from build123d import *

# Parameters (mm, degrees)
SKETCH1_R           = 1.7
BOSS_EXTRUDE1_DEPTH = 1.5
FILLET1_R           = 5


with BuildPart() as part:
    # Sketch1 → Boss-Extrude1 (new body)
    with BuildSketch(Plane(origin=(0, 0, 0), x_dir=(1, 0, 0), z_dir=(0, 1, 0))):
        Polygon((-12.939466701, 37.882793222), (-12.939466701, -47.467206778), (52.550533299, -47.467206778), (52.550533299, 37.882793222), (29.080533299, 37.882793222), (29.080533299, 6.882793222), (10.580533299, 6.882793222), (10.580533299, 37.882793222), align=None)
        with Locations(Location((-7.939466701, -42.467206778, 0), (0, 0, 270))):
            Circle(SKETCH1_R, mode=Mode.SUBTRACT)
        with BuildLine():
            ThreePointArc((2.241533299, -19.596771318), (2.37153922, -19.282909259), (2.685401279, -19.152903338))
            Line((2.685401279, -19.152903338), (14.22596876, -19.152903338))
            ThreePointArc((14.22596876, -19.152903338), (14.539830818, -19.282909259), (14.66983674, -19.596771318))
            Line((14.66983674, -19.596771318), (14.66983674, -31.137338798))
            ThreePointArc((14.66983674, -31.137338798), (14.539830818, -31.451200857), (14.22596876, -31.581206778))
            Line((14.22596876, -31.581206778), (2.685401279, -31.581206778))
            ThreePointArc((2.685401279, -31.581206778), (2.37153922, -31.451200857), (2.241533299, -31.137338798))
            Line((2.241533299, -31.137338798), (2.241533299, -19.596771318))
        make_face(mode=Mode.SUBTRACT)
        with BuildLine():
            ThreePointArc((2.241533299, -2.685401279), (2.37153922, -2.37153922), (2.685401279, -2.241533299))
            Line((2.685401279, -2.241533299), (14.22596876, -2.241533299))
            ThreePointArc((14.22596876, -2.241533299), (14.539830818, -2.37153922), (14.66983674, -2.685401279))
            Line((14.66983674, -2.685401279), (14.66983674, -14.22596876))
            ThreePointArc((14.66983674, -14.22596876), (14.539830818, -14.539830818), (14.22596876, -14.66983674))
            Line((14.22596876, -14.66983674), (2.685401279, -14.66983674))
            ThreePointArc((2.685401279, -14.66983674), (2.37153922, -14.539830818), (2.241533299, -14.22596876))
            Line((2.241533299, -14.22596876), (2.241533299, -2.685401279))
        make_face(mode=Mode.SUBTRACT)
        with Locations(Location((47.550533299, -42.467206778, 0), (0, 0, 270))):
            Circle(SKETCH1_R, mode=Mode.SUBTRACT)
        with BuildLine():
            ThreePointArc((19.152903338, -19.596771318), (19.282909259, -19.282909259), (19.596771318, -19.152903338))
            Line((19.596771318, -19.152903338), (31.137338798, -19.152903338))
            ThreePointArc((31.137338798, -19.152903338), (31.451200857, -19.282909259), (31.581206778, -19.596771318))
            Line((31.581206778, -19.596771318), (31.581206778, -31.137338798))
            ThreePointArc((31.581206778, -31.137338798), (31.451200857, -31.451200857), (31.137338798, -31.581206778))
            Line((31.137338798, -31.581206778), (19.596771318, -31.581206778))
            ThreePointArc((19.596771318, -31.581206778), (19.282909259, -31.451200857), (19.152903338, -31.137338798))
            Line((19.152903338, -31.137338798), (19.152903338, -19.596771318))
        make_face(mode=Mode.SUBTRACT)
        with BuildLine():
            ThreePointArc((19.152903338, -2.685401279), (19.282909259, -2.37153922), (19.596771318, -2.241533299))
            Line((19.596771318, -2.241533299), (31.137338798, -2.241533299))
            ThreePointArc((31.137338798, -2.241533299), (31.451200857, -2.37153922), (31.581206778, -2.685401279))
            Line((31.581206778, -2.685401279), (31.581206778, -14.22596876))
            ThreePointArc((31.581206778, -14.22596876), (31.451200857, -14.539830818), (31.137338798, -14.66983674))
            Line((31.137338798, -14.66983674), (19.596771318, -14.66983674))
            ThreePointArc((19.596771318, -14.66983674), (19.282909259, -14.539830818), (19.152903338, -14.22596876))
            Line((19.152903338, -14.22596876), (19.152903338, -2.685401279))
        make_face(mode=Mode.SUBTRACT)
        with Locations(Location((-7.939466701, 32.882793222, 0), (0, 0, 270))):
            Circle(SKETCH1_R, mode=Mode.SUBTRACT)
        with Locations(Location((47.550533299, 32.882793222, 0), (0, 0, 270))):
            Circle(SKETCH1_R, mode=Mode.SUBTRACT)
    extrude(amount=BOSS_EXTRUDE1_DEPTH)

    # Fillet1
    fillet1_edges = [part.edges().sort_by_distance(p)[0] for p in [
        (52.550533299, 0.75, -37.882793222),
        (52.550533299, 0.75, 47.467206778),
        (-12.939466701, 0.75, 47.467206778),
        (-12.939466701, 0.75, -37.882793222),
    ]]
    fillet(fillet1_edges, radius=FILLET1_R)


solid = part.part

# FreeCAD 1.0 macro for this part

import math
import FreeCAD as App
import Part
import Sketcher
from FreeCAD import Vector


def edges_at(feature, points):
    """Names of the edges that pass closest to the given points."""
    edges = feature.Shape.Edges
    near = lambda p: min(range(len(edges)), key=lambda i: edges[i].distToShape(Part.Vertex(*p))[0])
    return sorted({f"Edge{near(p) + 1}" for p in points})

doc = App.newDocument("Part")
body = doc.addObject("PartDesign::Body", "Body")

sketch1 = body.newObject("Sketcher::SketchObject", "Sketch")
sketch1.AttachmentSupport = (doc.getObject("XZ_Plane"), [""])
sketch1.MapMode = "FlatFace"
sketch1.addGeometry(Part.LineSegment(Vector(-12.94, -37.88, 0), Vector(-12.94, 47.47, 0)), False)
sketch1.addGeometry(Part.LineSegment(Vector(-12.94, 47.47, 0), Vector(52.55, 47.47, 0)), False)
sketch1.addGeometry(Part.LineSegment(Vector(52.55, 47.47, 0), Vector(52.55, -37.88, 0)), False)
sketch1.addGeometry(Part.LineSegment(Vector(52.55, -37.88, 0), Vector(29.08, -37.88, 0)), False)
sketch1.addGeometry(Part.LineSegment(Vector(29.08, -37.88, 0), Vector(29.08, -6.88, 0)), False)
sketch1.addGeometry(Part.LineSegment(Vector(29.08, -6.88, 0), Vector(10.58, -6.88, 0)), False)
sketch1.addGeometry(Part.LineSegment(Vector(10.58, -6.88, 0), Vector(10.58, -37.88, 0)), False)
sketch1.addGeometry(Part.LineSegment(Vector(10.58, -37.88, 0), Vector(-12.94, -37.88, 0)), False)
sketch1.addGeometry(Part.Circle(Vector(-7.94, 42.47, 0), Vector(0, 0, 1), 1.7), False)
sketch1.addGeometry(Part.LineSegment(Vector(2.24, 31.14, 0), Vector(2.24, 19.6, 0)), False)
sketch1.addGeometry(Part.ArcOfCircle(Part.Circle(Vector(2.69, 19.6, 0), Vector(0, 0, 1), 0.44), math.radians(180), math.radians(270)), False)
sketch1.addGeometry(Part.LineSegment(Vector(2.69, 19.15, 0), Vector(14.23, 19.15, 0)), False)
sketch1.addGeometry(Part.ArcOfCircle(Part.Circle(Vector(14.23, 19.6, 0), Vector(0, 0, 1), 0.44), math.radians(-90), math.radians(0)), False)
sketch1.addGeometry(Part.LineSegment(Vector(14.67, 19.6, 0), Vector(14.67, 31.14, 0)), False)
sketch1.addGeometry(Part.ArcOfCircle(Part.Circle(Vector(14.23, 31.14, 0), Vector(0, 0, 1), 0.44), math.radians(0), math.radians(90)), False)
sketch1.addGeometry(Part.LineSegment(Vector(14.23, 31.58, 0), Vector(2.69, 31.58, 0)), False)
sketch1.addGeometry(Part.ArcOfCircle(Part.Circle(Vector(2.69, 31.14, 0), Vector(0, 0, 1), 0.44), math.radians(90), math.radians(180)), False)
sketch1.addGeometry(Part.LineSegment(Vector(2.24, 14.23, 0), Vector(2.24, 2.69, 0)), False)
sketch1.addGeometry(Part.ArcOfCircle(Part.Circle(Vector(2.69, 2.69, 0), Vector(0, 0, 1), 0.44), math.radians(180), math.radians(270)), False)
sketch1.addGeometry(Part.LineSegment(Vector(2.69, 2.24, 0), Vector(14.23, 2.24, 0)), False)
sketch1.addGeometry(Part.ArcOfCircle(Part.Circle(Vector(14.23, 2.69, 0), Vector(0, 0, 1), 0.44), math.radians(-90), math.radians(0)), False)
sketch1.addGeometry(Part.LineSegment(Vector(14.67, 2.69, 0), Vector(14.67, 14.23, 0)), False)
sketch1.addGeometry(Part.ArcOfCircle(Part.Circle(Vector(14.23, 14.23, 0), Vector(0, 0, 1), 0.44), math.radians(0), math.radians(90)), False)
sketch1.addGeometry(Part.LineSegment(Vector(14.23, 14.67, 0), Vector(2.69, 14.67, 0)), False)
sketch1.addGeometry(Part.ArcOfCircle(Part.Circle(Vector(2.69, 14.23, 0), Vector(0, 0, 1), 0.44), math.radians(90), math.radians(180)), False)
sketch1.addGeometry(Part.LineSegment(Vector(19.15, 31.14, 0), Vector(19.15, 19.6, 0)), False)
sketch1.addGeometry(Part.ArcOfCircle(Part.Circle(Vector(19.6, 19.6, 0), Vector(0, 0, 1), 0.44), math.radians(180), math.radians(270)), False)
sketch1.addGeometry(Part.LineSegment(Vector(19.6, 19.15, 0), Vector(31.14, 19.15, 0)), False)
sketch1.addGeometry(Part.ArcOfCircle(Part.Circle(Vector(31.14, 19.6, 0), Vector(0, 0, 1), 0.44), math.radians(-90), math.radians(0)), False)
sketch1.addGeometry(Part.LineSegment(Vector(31.58, 19.6, 0), Vector(31.58, 31.14, 0)), False)
sketch1.addGeometry(Part.ArcOfCircle(Part.Circle(Vector(31.14, 31.14, 0), Vector(0, 0, 1), 0.44), math.radians(0), math.radians(90)), False)
sketch1.addGeometry(Part.LineSegment(Vector(31.14, 31.58, 0), Vector(19.6, 31.58, 0)), False)
sketch1.addGeometry(Part.ArcOfCircle(Part.Circle(Vector(19.6, 31.14, 0), Vector(0, 0, 1), 0.44), math.radians(90), math.radians(180)), False)
sketch1.addGeometry(Part.Circle(Vector(47.55, 42.47, 0), Vector(0, 0, 1), 1.7), False)
sketch1.addGeometry(Part.LineSegment(Vector(19.15, 14.23, 0), Vector(19.15, 2.69, 0)), False)
sketch1.addGeometry(Part.ArcOfCircle(Part.Circle(Vector(19.6, 2.69, 0), Vector(0, 0, 1), 0.44), math.radians(180), math.radians(270)), False)
sketch1.addGeometry(Part.LineSegment(Vector(19.6, 2.24, 0), Vector(31.14, 2.24, 0)), False)
sketch1.addGeometry(Part.ArcOfCircle(Part.Circle(Vector(31.14, 2.69, 0), Vector(0, 0, 1), 0.44), math.radians(-90), math.radians(0)), False)
sketch1.addGeometry(Part.LineSegment(Vector(31.58, 2.69, 0), Vector(31.58, 14.23, 0)), False)
sketch1.addGeometry(Part.ArcOfCircle(Part.Circle(Vector(31.14, 14.23, 0), Vector(0, 0, 1), 0.44), math.radians(0), math.radians(90)), False)
sketch1.addGeometry(Part.LineSegment(Vector(31.14, 14.67, 0), Vector(19.6, 14.67, 0)), False)
sketch1.addGeometry(Part.ArcOfCircle(Part.Circle(Vector(19.6, 14.23, 0), Vector(0, 0, 1), 0.44), math.radians(90), math.radians(180)), False)
sketch1.addGeometry(Part.Circle(Vector(-7.94, -32.88, 0), Vector(0, 0, 1), 1.7), False)
sketch1.addGeometry(Part.Circle(Vector(47.55, -32.88, 0), Vector(0, 0, 1), 1.7), False)
sketch1.addConstraint(Sketcher.Constraint("Coincident", 0, 2, 1, 1))
sketch1.addConstraint(Sketcher.Constraint("Coincident", 1, 2, 2, 1))
sketch1.addConstraint(Sketcher.Constraint("Coincident", 2, 2, 3, 1))
sketch1.addConstraint(Sketcher.Constraint("Coincident", 3, 2, 4, 1))
sketch1.addConstraint(Sketcher.Constraint("Coincident", 4, 2, 5, 1))
sketch1.addConstraint(Sketcher.Constraint("Coincident", 5, 2, 6, 1))
sketch1.addConstraint(Sketcher.Constraint("Coincident", 6, 2, 7, 1))
sketch1.addConstraint(Sketcher.Constraint("Coincident", 7, 2, 0, 1))
sketch1.addConstraint(Sketcher.Constraint("Tangent", 9, 2, 10, 1))
sketch1.addConstraint(Sketcher.Constraint("Tangent", 10, 2, 11, 1))
sketch1.addConstraint(Sketcher.Constraint("Tangent", 11, 2, 12, 1))
sketch1.addConstraint(Sketcher.Constraint("Tangent", 12, 2, 13, 1))
sketch1.addConstraint(Sketcher.Constraint("Tangent", 13, 2, 14, 1))
sketch1.addConstraint(Sketcher.Constraint("Tangent", 14, 2, 15, 1))
sketch1.addConstraint(Sketcher.Constraint("Tangent", 15, 2, 16, 1))
sketch1.addConstraint(Sketcher.Constraint("Tangent", 16, 2, 9, 1))
sketch1.addConstraint(Sketcher.Constraint("Tangent", 17, 2, 18, 1))
sketch1.addConstraint(Sketcher.Constraint("Tangent", 18, 2, 19, 1))
sketch1.addConstraint(Sketcher.Constraint("Tangent", 19, 2, 20, 1))
sketch1.addConstraint(Sketcher.Constraint("Tangent", 20, 2, 21, 1))
sketch1.addConstraint(Sketcher.Constraint("Tangent", 21, 2, 22, 1))
sketch1.addConstraint(Sketcher.Constraint("Tangent", 22, 2, 23, 1))
sketch1.addConstraint(Sketcher.Constraint("Tangent", 23, 2, 24, 1))
sketch1.addConstraint(Sketcher.Constraint("Tangent", 24, 2, 17, 1))
sketch1.addConstraint(Sketcher.Constraint("Tangent", 25, 2, 26, 1))
sketch1.addConstraint(Sketcher.Constraint("Tangent", 26, 2, 27, 1))
sketch1.addConstraint(Sketcher.Constraint("Tangent", 27, 2, 28, 1))
sketch1.addConstraint(Sketcher.Constraint("Tangent", 28, 2, 29, 1))
sketch1.addConstraint(Sketcher.Constraint("Tangent", 29, 2, 30, 1))
sketch1.addConstraint(Sketcher.Constraint("Tangent", 30, 2, 31, 1))
sketch1.addConstraint(Sketcher.Constraint("Tangent", 31, 2, 32, 1))
sketch1.addConstraint(Sketcher.Constraint("Tangent", 32, 2, 25, 1))
sketch1.addConstraint(Sketcher.Constraint("Tangent", 34, 2, 35, 1))
sketch1.addConstraint(Sketcher.Constraint("Tangent", 35, 2, 36, 1))
sketch1.addConstraint(Sketcher.Constraint("Tangent", 36, 2, 37, 1))
sketch1.addConstraint(Sketcher.Constraint("Tangent", 37, 2, 38, 1))
sketch1.addConstraint(Sketcher.Constraint("Tangent", 38, 2, 39, 1))
sketch1.addConstraint(Sketcher.Constraint("Tangent", 39, 2, 40, 1))
sketch1.addConstraint(Sketcher.Constraint("Tangent", 40, 2, 41, 1))
sketch1.addConstraint(Sketcher.Constraint("Tangent", 41, 2, 34, 1))
sketch1.addConstraint(Sketcher.Constraint("Vertical", 0))
sketch1.addConstraint(Sketcher.Constraint("Horizontal", 1))
sketch1.addConstraint(Sketcher.Constraint("Vertical", 2))
sketch1.addConstraint(Sketcher.Constraint("Horizontal", 3))
sketch1.addConstraint(Sketcher.Constraint("Vertical", 4))
sketch1.addConstraint(Sketcher.Constraint("Horizontal", 5))
sketch1.addConstraint(Sketcher.Constraint("Vertical", 6))
sketch1.addConstraint(Sketcher.Constraint("Horizontal", 7))
sketch1.addConstraint(Sketcher.Constraint("Vertical", 9))
sketch1.addConstraint(Sketcher.Constraint("Horizontal", 11))
sketch1.addConstraint(Sketcher.Constraint("Vertical", 13))
sketch1.addConstraint(Sketcher.Constraint("Horizontal", 15))
sketch1.addConstraint(Sketcher.Constraint("Vertical", 17))
sketch1.addConstraint(Sketcher.Constraint("Horizontal", 19))
sketch1.addConstraint(Sketcher.Constraint("Vertical", 21))
sketch1.addConstraint(Sketcher.Constraint("Horizontal", 23))
sketch1.addConstraint(Sketcher.Constraint("Vertical", 25))
sketch1.addConstraint(Sketcher.Constraint("Horizontal", 27))
sketch1.addConstraint(Sketcher.Constraint("Vertical", 29))
sketch1.addConstraint(Sketcher.Constraint("Horizontal", 31))
sketch1.addConstraint(Sketcher.Constraint("Vertical", 34))
sketch1.addConstraint(Sketcher.Constraint("Horizontal", 36))
sketch1.addConstraint(Sketcher.Constraint("Vertical", 38))
sketch1.addConstraint(Sketcher.Constraint("Horizontal", 40))
sketch1.addConstraint(Sketcher.Constraint("Equal", 10, 12))
sketch1.addConstraint(Sketcher.Constraint("Equal", 12, 14))
sketch1.addConstraint(Sketcher.Constraint("Equal", 14, 16))
sketch1.addConstraint(Sketcher.Constraint("Equal", 16, 18))
sketch1.addConstraint(Sketcher.Constraint("Equal", 18, 20))
sketch1.addConstraint(Sketcher.Constraint("Equal", 20, 22))
sketch1.addConstraint(Sketcher.Constraint("Equal", 22, 24))
sketch1.addConstraint(Sketcher.Constraint("Equal", 24, 26))
sketch1.addConstraint(Sketcher.Constraint("Equal", 26, 28))
sketch1.addConstraint(Sketcher.Constraint("Equal", 28, 30))
sketch1.addConstraint(Sketcher.Constraint("Equal", 30, 32))
sketch1.addConstraint(Sketcher.Constraint("Equal", 8, 33))
sketch1.addConstraint(Sketcher.Constraint("Equal", 32, 35))
sketch1.addConstraint(Sketcher.Constraint("Equal", 35, 37))
sketch1.addConstraint(Sketcher.Constraint("Equal", 37, 39))
sketch1.addConstraint(Sketcher.Constraint("Equal", 39, 41))
sketch1.addConstraint(Sketcher.Constraint("Equal", 33, 42))
sketch1.addConstraint(Sketcher.Constraint("Equal", 42, 43))
sketch1.addConstraint(Sketcher.Constraint("Horizontal", 12, 3, 26, 3))
sketch1.addConstraint(Sketcher.Constraint("Horizontal", 16, 3, 30, 3))
sketch1.addConstraint(Sketcher.Constraint("Horizontal", 8, 3, 33, 3))
sketch1.addConstraint(Sketcher.Constraint("Horizontal", 20, 3, 35, 3))
sketch1.addConstraint(Sketcher.Constraint("Horizontal", 24, 3, 39, 3))
sketch1.addConstraint(Sketcher.Constraint("Horizontal", 42, 3, 43, 3))
sketch1.addConstraint(Sketcher.Constraint("Horizontal", 3, 2, 6, 2))
sketch1.addConstraint(Sketcher.Constraint("Vertical", 16, 3, 18, 3))
sketch1.addConstraint(Sketcher.Constraint("Vertical", 14, 3, 20, 3))
sketch1.addConstraint(Sketcher.Constraint("Vertical", 32, 3, 35, 3))
sketch1.addConstraint(Sketcher.Constraint("Vertical", 30, 3, 37, 3))
sketch1.addConstraint(Sketcher.Constraint("Vertical", 8, 3, 42, 3))
sketch1.addConstraint(Sketcher.Constraint("Vertical", 33, 3, 43, 3))
sketch1.addConstraint(Sketcher.Constraint("Equal", 23, 27))
sketch1.addConstraint(Sketcher.Constraint("Equal", 40, 9))
sketch1.addConstraint(Sketcher.Constraint("Equal", 13, 17))
sketch1.addConstraint(Sketcher.Constraint("Diameter", 8, 3.4))
sketch1.addConstraint(Sketcher.Constraint("DistanceY", 4, 1, 4, 2, 31.0))
sketch1.addConstraint(Sketcher.Constraint("DistanceX", 5, 2, 5, 1, 18.5))
sketch1.addConstraint(Sketcher.Constraint("DistanceX", 0, 2, 8, 3, 5.0))
sketch1.addConstraint(Sketcher.Constraint("DistanceY", 8, 3, 0, 2, 5.0))
sketch1.addConstraint(Sketcher.Constraint("DistanceX", 33, 3, 1, 2, 5.0))
sketch1.addConstraint(Sketcher.Constraint("DistanceY", 2, 2, 43, 3, 5.0))
sketch1.addConstraint(Sketcher.Constraint("DistanceX", 1, 1, 1, 2, 65.49))
sketch1.addConstraint(Sketcher.Constraint("DistanceX", 3, 2, 3, 1, 23.47))
sketch1.addConstraint(Sketcher.Constraint("DistanceY", 0, 1, 0, 2, 85.35))
sketch1.addConstraint(Sketcher.Constraint("Radius", 10, 0.443868))
sketch1.addConstraint(Sketcher.Constraint("DistanceX", 17, 2, 5, 2, 8.339))
sketch1.addConstraint(Sketcher.Constraint("DistanceX", -1, 1, 10, 3, 2.685401))
sketch1.addConstraint(Sketcher.Constraint("DistanceY", -1, 1, 18, 3, 2.685401))
sketch1.addConstraint(Sketcher.Constraint("DistanceX", 11, 1, 11, 2, 11.540567))
sketch1.addConstraint(Sketcher.Constraint("DistanceY", -1, 1, 10, 3, 19.596771))
sketch1.addConstraint(Sketcher.Constraint("DistanceX", -1, 1, 26, 3, 19.596771))
sketch1.addConstraint(Sketcher.Constraint("DistanceY", 42, 3, 24, 3, 47.108762))
pad1 = body.newObject("PartDesign::Pad", "Pad")
pad1.Profile = sketch1
pad1.Length = 1.5
pad1.Reversed = True
doc.recompute()

fillet = body.newObject("PartDesign::Fillet", "Fillet")
fillet.Base = (pad1, edges_at(pad1, [
    (52.551, 0.75, -37.883),
    (52.551, 0.75, 47.467),
    (-12.939, 0.75, 47.467),
    (-12.939, 0.75, -37.883),
]))
fillet.Radius = 5

doc.recompute()
